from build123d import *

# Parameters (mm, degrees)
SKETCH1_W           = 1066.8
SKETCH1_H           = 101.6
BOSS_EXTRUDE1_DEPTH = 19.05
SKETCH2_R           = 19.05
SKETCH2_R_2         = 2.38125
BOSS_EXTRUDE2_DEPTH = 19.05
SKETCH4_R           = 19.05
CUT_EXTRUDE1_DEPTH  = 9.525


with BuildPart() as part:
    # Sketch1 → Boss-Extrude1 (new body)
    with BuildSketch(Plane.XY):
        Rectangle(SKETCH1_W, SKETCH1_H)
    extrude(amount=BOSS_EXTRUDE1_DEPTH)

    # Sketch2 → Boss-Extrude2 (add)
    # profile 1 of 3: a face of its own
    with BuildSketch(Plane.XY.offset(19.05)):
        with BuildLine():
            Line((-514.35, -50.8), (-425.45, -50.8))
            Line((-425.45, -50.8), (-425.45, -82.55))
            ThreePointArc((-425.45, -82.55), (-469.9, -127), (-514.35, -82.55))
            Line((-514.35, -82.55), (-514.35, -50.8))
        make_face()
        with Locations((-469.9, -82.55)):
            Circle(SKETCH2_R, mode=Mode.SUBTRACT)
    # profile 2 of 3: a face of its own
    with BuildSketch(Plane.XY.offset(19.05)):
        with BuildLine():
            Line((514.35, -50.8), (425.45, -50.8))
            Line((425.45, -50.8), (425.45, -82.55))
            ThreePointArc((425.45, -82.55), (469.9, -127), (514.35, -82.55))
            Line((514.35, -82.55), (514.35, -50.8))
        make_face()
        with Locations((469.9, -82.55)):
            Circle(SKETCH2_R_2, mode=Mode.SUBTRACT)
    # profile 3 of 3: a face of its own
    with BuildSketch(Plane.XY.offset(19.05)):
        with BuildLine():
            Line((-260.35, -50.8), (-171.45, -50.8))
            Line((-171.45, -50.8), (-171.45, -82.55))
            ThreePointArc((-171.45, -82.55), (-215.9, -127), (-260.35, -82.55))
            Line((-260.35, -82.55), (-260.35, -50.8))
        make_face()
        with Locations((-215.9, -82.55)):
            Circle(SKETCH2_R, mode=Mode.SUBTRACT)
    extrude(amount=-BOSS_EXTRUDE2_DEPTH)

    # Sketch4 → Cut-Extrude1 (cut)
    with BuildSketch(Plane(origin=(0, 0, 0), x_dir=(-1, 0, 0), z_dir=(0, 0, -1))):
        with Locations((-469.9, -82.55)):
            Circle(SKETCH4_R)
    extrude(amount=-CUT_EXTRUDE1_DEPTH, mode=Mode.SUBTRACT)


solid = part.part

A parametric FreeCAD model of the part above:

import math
import FreeCAD as App
import Part
import Sketcher
from FreeCAD import Vector
Q = App.Units.Quantity

doc = App.newDocument("Part")
body = doc.addObject("PartDesign::Body", "Body")

sketch1 = body.newObject("Sketcher::SketchObject", "Sketch")
sketch1.AttachmentSupport = (doc.getObject("XY_Plane"), [""])
sketch1.MapMode = "FlatFace"
sketch1.addGeometry([
    Part.LineSegment(Vector(-533, 51, 0), Vector(-533, -51, 0)),
    Part.LineSegment(Vector(-533, -51, 0), Vector(533, -51, 0)),
    Part.LineSegment(Vector(533, -51, 0), Vector(533, 51, 0)),
    Part.LineSegment(Vector(533, 51, 0), Vector(-533, 51, 0)),
], False)
sketch1.addConstraint([
    Sketcher.Constraint("Coincident", 0, 2, 1, 1),
    Sketcher.Constraint("Coincident", 1, 2, 2, 1),
    Sketcher.Constraint("Coincident", 2, 2, 3, 1),
    Sketcher.Constraint("Coincident", 3, 2, 0, 1),
    Sketcher.Constraint("Vertical", 0),
    Sketcher.Constraint("Horizontal", 1),
    Sketcher.Constraint("Vertical", 2),
    Sketcher.Constraint("Horizontal", 3),
    Sketcher.Constraint("Symmetric", 0, 2, 2, 2, -1, 1),
    Sketcher.Constraint("DistanceX", 1, 1, 1, 2, Q("42 in")),
    Sketcher.Constraint("DistanceY", 0, 2, 0, 1, Q("4 in")),
])
pad1 = body.newObject("PartDesign::Pad", "Pad")
pad1.Profile = sketch1
pad1.Length = Q("0.75 in")

sketch2 = body.newObject("Sketcher::SketchObject", "Sketch001")
sketch2.AttachmentSupport = (doc.getObject("XY_Plane"), [""])
sketch2.MapMode = "FlatFace"
sketch2.AttachmentOffset = App.Placement(Vector(0, 0, 0.75 * 25.4), App.Rotation())
sketch2.addGeometry([
    Part.LineSegment(Vector(-425.4, -50.8, 0), Vector(-514.4, -50.8, 0)),
    Part.LineSegment(Vector(-514.4, -50.8, 0), Vector(-514.4, -82.5, 0)),
    Part.ArcOfCircle(Part.Circle(Vector(-469.9, -82.5, 0), Vector(0, 0, 1), 44.5), math.radians(180), math.radians(360)),
    Part.LineSegment(Vector(-425.4, -82.5, 0), Vector(-425.4, -50.8, 0)),
    Part.Circle(Vector(-469.9, -82.5, 0), Vector(0, 0, 1), 19.1),
    Part.LineSegment(Vector(514.4, -50.8, 0), Vector(425.4, -50.8, 0)),
    Part.LineSegment(Vector(425.4, -50.8, 0), Vector(425.4, -82.5, 0)),
    Part.ArcOfCircle(Part.Circle(Vector(469.9, -82.5, 0), Vector(0, 0, 1), 44.5), math.radians(180), math.radians(360)),
    Part.LineSegment(Vector(514.4, -82.5, 0), Vector(514.4, -50.8, 0)),
    Part.Circle(Vector(469.9, -82.5, 0), Vector(0, 0, 1), 2.4),
    Part.LineSegment(Vector(-171.4, -50.8, 0), Vector(-260.4, -50.8, 0)),
    Part.LineSegment(Vector(-260.4, -50.8, 0), Vector(-260.4, -82.5, 0)),
    Part.ArcOfCircle(Part.Circle(Vector(-215.9, -82.5, 0), Vector(0, 0, 1), 44.5), math.radians(180), math.radians(360)),
    Part.LineSegment(Vector(-171.4, -82.5, 0), Vector(-171.4, -50.8, 0)),
    Part.Circle(Vector(-215.9, -82.5, 0), Vector(0, 0, 1), 19.1),
], False)
sketch2.addConstraint([
    Sketcher.Constraint("Coincident", 0, 2, 1, 1),
    Sketcher.Constraint("Tangent", 1, 2, 2, 1),
    Sketcher.Constraint("Tangent", 2, 2, 3, 1),
    Sketcher.Constraint("Coincident", 3, 2, 0, 1),
    Sketcher.Constraint("Coincident", 5, 2, 6, 1),
    Sketcher.Constraint("Tangent", 6, 2, 7, 1),
    Sketcher.Constraint("Tangent", 7, 2, 8, 1),
    Sketcher.Constraint("Coincident", 8, 2, 5, 1),
    Sketcher.Constraint("Coincident", 10, 2, 11, 1),
    Sketcher.Constraint("Tangent", 11, 2, 12, 1),
    Sketcher.Constraint("Tangent", 12, 2, 13, 1),
    Sketcher.Constraint("Coincident", 13, 2, 10, 1),
    Sketcher.Constraint("Horizontal", 0),
    Sketcher.Constraint("Vertical", 1),
    Sketcher.Constraint("Vertical", 3),
    Sketcher.Constraint("Horizontal", 5),
    Sketcher.Constraint("Vertical", 6),
    Sketcher.Constraint("Vertical", 8),
    Sketcher.Constraint("Horizontal", 10),
    Sketcher.Constraint("Vertical", 11),
    Sketcher.Constraint("Vertical", 13),
    Sketcher.Constraint("Coincident", 4, 3, 2, 3),
    Sketcher.Constraint("Coincident", 9, 3, 7, 3),
    Sketcher.Constraint("Coincident", 14, 3, 12, 3),
    Sketcher.Constraint("Equal", 2, 7),
    Sketcher.Constraint("Equal", 7, 12),
    Sketcher.Constraint("Equal", 4, 14),
    Sketcher.Constraint("Symmetric", 2, 3, 7, 3, -2),
    Sketcher.Constraint("Horizontal", 9, 3, 12, 3),
    Sketcher.Constraint("Horizontal", 3, 2, 5, 2),
    Sketcher.Constraint("Horizontal", 8, 2, 10, 2),
    Sketcher.Constraint("Diameter", 4, Q("1.5 in")),
    Sketcher.Constraint("Radius", 2, Q("1.75 in")),
    Sketcher.Constraint("Diameter", 9, Q("0.1875 in")),
    Sketcher.Constraint("DistanceY", 0, 2, -1, 1, Q("2 in")),
    Sketcher.Constraint("DistanceX", 2, 3, 7, 3, Q("37 in")),
    Sketcher.Constraint("DistanceX", 2, 3, 12, 3, Q("10 in")),
    Sketcher.Constraint("DistanceY", 1, 2, 1, 1, Q("1.25 in")),
])
pad2 = body.newObject("PartDesign::Pad", "Pad001")
pad2.Profile = sketch2
pad2.Length = Q("0.75 in")
pad2.Reversed = True

sketch3 = body.newObject("Sketcher::SketchObject", "Sketch002")
sketch3.AttachmentSupport = (doc.getObject("XY_Plane"), [""])
sketch3.MapMode = "FlatFace"
sketch3.addGeometry(Part.Circle(Vector(470, -83, 0), Vector(0, 0, 1), 19), False)
sketch3.addConstraint([
    Sketcher.Constraint("Diameter", 0, Q("1.5 in")),
    Sketcher.Constraint("DistanceX", -1, 1, 0, 3, Q("18.5 in")),
    Sketcher.Constraint("DistanceY", 0, 3, -1, 1, Q("3.25 in")),
])
pocket1 = body.newObject("PartDesign::Pocket", "Pocket")
pocket1.Profile = sketch3
pocket1.Length = Q("0.375 in")
pocket1.Reversed = True

doc.recompute()
